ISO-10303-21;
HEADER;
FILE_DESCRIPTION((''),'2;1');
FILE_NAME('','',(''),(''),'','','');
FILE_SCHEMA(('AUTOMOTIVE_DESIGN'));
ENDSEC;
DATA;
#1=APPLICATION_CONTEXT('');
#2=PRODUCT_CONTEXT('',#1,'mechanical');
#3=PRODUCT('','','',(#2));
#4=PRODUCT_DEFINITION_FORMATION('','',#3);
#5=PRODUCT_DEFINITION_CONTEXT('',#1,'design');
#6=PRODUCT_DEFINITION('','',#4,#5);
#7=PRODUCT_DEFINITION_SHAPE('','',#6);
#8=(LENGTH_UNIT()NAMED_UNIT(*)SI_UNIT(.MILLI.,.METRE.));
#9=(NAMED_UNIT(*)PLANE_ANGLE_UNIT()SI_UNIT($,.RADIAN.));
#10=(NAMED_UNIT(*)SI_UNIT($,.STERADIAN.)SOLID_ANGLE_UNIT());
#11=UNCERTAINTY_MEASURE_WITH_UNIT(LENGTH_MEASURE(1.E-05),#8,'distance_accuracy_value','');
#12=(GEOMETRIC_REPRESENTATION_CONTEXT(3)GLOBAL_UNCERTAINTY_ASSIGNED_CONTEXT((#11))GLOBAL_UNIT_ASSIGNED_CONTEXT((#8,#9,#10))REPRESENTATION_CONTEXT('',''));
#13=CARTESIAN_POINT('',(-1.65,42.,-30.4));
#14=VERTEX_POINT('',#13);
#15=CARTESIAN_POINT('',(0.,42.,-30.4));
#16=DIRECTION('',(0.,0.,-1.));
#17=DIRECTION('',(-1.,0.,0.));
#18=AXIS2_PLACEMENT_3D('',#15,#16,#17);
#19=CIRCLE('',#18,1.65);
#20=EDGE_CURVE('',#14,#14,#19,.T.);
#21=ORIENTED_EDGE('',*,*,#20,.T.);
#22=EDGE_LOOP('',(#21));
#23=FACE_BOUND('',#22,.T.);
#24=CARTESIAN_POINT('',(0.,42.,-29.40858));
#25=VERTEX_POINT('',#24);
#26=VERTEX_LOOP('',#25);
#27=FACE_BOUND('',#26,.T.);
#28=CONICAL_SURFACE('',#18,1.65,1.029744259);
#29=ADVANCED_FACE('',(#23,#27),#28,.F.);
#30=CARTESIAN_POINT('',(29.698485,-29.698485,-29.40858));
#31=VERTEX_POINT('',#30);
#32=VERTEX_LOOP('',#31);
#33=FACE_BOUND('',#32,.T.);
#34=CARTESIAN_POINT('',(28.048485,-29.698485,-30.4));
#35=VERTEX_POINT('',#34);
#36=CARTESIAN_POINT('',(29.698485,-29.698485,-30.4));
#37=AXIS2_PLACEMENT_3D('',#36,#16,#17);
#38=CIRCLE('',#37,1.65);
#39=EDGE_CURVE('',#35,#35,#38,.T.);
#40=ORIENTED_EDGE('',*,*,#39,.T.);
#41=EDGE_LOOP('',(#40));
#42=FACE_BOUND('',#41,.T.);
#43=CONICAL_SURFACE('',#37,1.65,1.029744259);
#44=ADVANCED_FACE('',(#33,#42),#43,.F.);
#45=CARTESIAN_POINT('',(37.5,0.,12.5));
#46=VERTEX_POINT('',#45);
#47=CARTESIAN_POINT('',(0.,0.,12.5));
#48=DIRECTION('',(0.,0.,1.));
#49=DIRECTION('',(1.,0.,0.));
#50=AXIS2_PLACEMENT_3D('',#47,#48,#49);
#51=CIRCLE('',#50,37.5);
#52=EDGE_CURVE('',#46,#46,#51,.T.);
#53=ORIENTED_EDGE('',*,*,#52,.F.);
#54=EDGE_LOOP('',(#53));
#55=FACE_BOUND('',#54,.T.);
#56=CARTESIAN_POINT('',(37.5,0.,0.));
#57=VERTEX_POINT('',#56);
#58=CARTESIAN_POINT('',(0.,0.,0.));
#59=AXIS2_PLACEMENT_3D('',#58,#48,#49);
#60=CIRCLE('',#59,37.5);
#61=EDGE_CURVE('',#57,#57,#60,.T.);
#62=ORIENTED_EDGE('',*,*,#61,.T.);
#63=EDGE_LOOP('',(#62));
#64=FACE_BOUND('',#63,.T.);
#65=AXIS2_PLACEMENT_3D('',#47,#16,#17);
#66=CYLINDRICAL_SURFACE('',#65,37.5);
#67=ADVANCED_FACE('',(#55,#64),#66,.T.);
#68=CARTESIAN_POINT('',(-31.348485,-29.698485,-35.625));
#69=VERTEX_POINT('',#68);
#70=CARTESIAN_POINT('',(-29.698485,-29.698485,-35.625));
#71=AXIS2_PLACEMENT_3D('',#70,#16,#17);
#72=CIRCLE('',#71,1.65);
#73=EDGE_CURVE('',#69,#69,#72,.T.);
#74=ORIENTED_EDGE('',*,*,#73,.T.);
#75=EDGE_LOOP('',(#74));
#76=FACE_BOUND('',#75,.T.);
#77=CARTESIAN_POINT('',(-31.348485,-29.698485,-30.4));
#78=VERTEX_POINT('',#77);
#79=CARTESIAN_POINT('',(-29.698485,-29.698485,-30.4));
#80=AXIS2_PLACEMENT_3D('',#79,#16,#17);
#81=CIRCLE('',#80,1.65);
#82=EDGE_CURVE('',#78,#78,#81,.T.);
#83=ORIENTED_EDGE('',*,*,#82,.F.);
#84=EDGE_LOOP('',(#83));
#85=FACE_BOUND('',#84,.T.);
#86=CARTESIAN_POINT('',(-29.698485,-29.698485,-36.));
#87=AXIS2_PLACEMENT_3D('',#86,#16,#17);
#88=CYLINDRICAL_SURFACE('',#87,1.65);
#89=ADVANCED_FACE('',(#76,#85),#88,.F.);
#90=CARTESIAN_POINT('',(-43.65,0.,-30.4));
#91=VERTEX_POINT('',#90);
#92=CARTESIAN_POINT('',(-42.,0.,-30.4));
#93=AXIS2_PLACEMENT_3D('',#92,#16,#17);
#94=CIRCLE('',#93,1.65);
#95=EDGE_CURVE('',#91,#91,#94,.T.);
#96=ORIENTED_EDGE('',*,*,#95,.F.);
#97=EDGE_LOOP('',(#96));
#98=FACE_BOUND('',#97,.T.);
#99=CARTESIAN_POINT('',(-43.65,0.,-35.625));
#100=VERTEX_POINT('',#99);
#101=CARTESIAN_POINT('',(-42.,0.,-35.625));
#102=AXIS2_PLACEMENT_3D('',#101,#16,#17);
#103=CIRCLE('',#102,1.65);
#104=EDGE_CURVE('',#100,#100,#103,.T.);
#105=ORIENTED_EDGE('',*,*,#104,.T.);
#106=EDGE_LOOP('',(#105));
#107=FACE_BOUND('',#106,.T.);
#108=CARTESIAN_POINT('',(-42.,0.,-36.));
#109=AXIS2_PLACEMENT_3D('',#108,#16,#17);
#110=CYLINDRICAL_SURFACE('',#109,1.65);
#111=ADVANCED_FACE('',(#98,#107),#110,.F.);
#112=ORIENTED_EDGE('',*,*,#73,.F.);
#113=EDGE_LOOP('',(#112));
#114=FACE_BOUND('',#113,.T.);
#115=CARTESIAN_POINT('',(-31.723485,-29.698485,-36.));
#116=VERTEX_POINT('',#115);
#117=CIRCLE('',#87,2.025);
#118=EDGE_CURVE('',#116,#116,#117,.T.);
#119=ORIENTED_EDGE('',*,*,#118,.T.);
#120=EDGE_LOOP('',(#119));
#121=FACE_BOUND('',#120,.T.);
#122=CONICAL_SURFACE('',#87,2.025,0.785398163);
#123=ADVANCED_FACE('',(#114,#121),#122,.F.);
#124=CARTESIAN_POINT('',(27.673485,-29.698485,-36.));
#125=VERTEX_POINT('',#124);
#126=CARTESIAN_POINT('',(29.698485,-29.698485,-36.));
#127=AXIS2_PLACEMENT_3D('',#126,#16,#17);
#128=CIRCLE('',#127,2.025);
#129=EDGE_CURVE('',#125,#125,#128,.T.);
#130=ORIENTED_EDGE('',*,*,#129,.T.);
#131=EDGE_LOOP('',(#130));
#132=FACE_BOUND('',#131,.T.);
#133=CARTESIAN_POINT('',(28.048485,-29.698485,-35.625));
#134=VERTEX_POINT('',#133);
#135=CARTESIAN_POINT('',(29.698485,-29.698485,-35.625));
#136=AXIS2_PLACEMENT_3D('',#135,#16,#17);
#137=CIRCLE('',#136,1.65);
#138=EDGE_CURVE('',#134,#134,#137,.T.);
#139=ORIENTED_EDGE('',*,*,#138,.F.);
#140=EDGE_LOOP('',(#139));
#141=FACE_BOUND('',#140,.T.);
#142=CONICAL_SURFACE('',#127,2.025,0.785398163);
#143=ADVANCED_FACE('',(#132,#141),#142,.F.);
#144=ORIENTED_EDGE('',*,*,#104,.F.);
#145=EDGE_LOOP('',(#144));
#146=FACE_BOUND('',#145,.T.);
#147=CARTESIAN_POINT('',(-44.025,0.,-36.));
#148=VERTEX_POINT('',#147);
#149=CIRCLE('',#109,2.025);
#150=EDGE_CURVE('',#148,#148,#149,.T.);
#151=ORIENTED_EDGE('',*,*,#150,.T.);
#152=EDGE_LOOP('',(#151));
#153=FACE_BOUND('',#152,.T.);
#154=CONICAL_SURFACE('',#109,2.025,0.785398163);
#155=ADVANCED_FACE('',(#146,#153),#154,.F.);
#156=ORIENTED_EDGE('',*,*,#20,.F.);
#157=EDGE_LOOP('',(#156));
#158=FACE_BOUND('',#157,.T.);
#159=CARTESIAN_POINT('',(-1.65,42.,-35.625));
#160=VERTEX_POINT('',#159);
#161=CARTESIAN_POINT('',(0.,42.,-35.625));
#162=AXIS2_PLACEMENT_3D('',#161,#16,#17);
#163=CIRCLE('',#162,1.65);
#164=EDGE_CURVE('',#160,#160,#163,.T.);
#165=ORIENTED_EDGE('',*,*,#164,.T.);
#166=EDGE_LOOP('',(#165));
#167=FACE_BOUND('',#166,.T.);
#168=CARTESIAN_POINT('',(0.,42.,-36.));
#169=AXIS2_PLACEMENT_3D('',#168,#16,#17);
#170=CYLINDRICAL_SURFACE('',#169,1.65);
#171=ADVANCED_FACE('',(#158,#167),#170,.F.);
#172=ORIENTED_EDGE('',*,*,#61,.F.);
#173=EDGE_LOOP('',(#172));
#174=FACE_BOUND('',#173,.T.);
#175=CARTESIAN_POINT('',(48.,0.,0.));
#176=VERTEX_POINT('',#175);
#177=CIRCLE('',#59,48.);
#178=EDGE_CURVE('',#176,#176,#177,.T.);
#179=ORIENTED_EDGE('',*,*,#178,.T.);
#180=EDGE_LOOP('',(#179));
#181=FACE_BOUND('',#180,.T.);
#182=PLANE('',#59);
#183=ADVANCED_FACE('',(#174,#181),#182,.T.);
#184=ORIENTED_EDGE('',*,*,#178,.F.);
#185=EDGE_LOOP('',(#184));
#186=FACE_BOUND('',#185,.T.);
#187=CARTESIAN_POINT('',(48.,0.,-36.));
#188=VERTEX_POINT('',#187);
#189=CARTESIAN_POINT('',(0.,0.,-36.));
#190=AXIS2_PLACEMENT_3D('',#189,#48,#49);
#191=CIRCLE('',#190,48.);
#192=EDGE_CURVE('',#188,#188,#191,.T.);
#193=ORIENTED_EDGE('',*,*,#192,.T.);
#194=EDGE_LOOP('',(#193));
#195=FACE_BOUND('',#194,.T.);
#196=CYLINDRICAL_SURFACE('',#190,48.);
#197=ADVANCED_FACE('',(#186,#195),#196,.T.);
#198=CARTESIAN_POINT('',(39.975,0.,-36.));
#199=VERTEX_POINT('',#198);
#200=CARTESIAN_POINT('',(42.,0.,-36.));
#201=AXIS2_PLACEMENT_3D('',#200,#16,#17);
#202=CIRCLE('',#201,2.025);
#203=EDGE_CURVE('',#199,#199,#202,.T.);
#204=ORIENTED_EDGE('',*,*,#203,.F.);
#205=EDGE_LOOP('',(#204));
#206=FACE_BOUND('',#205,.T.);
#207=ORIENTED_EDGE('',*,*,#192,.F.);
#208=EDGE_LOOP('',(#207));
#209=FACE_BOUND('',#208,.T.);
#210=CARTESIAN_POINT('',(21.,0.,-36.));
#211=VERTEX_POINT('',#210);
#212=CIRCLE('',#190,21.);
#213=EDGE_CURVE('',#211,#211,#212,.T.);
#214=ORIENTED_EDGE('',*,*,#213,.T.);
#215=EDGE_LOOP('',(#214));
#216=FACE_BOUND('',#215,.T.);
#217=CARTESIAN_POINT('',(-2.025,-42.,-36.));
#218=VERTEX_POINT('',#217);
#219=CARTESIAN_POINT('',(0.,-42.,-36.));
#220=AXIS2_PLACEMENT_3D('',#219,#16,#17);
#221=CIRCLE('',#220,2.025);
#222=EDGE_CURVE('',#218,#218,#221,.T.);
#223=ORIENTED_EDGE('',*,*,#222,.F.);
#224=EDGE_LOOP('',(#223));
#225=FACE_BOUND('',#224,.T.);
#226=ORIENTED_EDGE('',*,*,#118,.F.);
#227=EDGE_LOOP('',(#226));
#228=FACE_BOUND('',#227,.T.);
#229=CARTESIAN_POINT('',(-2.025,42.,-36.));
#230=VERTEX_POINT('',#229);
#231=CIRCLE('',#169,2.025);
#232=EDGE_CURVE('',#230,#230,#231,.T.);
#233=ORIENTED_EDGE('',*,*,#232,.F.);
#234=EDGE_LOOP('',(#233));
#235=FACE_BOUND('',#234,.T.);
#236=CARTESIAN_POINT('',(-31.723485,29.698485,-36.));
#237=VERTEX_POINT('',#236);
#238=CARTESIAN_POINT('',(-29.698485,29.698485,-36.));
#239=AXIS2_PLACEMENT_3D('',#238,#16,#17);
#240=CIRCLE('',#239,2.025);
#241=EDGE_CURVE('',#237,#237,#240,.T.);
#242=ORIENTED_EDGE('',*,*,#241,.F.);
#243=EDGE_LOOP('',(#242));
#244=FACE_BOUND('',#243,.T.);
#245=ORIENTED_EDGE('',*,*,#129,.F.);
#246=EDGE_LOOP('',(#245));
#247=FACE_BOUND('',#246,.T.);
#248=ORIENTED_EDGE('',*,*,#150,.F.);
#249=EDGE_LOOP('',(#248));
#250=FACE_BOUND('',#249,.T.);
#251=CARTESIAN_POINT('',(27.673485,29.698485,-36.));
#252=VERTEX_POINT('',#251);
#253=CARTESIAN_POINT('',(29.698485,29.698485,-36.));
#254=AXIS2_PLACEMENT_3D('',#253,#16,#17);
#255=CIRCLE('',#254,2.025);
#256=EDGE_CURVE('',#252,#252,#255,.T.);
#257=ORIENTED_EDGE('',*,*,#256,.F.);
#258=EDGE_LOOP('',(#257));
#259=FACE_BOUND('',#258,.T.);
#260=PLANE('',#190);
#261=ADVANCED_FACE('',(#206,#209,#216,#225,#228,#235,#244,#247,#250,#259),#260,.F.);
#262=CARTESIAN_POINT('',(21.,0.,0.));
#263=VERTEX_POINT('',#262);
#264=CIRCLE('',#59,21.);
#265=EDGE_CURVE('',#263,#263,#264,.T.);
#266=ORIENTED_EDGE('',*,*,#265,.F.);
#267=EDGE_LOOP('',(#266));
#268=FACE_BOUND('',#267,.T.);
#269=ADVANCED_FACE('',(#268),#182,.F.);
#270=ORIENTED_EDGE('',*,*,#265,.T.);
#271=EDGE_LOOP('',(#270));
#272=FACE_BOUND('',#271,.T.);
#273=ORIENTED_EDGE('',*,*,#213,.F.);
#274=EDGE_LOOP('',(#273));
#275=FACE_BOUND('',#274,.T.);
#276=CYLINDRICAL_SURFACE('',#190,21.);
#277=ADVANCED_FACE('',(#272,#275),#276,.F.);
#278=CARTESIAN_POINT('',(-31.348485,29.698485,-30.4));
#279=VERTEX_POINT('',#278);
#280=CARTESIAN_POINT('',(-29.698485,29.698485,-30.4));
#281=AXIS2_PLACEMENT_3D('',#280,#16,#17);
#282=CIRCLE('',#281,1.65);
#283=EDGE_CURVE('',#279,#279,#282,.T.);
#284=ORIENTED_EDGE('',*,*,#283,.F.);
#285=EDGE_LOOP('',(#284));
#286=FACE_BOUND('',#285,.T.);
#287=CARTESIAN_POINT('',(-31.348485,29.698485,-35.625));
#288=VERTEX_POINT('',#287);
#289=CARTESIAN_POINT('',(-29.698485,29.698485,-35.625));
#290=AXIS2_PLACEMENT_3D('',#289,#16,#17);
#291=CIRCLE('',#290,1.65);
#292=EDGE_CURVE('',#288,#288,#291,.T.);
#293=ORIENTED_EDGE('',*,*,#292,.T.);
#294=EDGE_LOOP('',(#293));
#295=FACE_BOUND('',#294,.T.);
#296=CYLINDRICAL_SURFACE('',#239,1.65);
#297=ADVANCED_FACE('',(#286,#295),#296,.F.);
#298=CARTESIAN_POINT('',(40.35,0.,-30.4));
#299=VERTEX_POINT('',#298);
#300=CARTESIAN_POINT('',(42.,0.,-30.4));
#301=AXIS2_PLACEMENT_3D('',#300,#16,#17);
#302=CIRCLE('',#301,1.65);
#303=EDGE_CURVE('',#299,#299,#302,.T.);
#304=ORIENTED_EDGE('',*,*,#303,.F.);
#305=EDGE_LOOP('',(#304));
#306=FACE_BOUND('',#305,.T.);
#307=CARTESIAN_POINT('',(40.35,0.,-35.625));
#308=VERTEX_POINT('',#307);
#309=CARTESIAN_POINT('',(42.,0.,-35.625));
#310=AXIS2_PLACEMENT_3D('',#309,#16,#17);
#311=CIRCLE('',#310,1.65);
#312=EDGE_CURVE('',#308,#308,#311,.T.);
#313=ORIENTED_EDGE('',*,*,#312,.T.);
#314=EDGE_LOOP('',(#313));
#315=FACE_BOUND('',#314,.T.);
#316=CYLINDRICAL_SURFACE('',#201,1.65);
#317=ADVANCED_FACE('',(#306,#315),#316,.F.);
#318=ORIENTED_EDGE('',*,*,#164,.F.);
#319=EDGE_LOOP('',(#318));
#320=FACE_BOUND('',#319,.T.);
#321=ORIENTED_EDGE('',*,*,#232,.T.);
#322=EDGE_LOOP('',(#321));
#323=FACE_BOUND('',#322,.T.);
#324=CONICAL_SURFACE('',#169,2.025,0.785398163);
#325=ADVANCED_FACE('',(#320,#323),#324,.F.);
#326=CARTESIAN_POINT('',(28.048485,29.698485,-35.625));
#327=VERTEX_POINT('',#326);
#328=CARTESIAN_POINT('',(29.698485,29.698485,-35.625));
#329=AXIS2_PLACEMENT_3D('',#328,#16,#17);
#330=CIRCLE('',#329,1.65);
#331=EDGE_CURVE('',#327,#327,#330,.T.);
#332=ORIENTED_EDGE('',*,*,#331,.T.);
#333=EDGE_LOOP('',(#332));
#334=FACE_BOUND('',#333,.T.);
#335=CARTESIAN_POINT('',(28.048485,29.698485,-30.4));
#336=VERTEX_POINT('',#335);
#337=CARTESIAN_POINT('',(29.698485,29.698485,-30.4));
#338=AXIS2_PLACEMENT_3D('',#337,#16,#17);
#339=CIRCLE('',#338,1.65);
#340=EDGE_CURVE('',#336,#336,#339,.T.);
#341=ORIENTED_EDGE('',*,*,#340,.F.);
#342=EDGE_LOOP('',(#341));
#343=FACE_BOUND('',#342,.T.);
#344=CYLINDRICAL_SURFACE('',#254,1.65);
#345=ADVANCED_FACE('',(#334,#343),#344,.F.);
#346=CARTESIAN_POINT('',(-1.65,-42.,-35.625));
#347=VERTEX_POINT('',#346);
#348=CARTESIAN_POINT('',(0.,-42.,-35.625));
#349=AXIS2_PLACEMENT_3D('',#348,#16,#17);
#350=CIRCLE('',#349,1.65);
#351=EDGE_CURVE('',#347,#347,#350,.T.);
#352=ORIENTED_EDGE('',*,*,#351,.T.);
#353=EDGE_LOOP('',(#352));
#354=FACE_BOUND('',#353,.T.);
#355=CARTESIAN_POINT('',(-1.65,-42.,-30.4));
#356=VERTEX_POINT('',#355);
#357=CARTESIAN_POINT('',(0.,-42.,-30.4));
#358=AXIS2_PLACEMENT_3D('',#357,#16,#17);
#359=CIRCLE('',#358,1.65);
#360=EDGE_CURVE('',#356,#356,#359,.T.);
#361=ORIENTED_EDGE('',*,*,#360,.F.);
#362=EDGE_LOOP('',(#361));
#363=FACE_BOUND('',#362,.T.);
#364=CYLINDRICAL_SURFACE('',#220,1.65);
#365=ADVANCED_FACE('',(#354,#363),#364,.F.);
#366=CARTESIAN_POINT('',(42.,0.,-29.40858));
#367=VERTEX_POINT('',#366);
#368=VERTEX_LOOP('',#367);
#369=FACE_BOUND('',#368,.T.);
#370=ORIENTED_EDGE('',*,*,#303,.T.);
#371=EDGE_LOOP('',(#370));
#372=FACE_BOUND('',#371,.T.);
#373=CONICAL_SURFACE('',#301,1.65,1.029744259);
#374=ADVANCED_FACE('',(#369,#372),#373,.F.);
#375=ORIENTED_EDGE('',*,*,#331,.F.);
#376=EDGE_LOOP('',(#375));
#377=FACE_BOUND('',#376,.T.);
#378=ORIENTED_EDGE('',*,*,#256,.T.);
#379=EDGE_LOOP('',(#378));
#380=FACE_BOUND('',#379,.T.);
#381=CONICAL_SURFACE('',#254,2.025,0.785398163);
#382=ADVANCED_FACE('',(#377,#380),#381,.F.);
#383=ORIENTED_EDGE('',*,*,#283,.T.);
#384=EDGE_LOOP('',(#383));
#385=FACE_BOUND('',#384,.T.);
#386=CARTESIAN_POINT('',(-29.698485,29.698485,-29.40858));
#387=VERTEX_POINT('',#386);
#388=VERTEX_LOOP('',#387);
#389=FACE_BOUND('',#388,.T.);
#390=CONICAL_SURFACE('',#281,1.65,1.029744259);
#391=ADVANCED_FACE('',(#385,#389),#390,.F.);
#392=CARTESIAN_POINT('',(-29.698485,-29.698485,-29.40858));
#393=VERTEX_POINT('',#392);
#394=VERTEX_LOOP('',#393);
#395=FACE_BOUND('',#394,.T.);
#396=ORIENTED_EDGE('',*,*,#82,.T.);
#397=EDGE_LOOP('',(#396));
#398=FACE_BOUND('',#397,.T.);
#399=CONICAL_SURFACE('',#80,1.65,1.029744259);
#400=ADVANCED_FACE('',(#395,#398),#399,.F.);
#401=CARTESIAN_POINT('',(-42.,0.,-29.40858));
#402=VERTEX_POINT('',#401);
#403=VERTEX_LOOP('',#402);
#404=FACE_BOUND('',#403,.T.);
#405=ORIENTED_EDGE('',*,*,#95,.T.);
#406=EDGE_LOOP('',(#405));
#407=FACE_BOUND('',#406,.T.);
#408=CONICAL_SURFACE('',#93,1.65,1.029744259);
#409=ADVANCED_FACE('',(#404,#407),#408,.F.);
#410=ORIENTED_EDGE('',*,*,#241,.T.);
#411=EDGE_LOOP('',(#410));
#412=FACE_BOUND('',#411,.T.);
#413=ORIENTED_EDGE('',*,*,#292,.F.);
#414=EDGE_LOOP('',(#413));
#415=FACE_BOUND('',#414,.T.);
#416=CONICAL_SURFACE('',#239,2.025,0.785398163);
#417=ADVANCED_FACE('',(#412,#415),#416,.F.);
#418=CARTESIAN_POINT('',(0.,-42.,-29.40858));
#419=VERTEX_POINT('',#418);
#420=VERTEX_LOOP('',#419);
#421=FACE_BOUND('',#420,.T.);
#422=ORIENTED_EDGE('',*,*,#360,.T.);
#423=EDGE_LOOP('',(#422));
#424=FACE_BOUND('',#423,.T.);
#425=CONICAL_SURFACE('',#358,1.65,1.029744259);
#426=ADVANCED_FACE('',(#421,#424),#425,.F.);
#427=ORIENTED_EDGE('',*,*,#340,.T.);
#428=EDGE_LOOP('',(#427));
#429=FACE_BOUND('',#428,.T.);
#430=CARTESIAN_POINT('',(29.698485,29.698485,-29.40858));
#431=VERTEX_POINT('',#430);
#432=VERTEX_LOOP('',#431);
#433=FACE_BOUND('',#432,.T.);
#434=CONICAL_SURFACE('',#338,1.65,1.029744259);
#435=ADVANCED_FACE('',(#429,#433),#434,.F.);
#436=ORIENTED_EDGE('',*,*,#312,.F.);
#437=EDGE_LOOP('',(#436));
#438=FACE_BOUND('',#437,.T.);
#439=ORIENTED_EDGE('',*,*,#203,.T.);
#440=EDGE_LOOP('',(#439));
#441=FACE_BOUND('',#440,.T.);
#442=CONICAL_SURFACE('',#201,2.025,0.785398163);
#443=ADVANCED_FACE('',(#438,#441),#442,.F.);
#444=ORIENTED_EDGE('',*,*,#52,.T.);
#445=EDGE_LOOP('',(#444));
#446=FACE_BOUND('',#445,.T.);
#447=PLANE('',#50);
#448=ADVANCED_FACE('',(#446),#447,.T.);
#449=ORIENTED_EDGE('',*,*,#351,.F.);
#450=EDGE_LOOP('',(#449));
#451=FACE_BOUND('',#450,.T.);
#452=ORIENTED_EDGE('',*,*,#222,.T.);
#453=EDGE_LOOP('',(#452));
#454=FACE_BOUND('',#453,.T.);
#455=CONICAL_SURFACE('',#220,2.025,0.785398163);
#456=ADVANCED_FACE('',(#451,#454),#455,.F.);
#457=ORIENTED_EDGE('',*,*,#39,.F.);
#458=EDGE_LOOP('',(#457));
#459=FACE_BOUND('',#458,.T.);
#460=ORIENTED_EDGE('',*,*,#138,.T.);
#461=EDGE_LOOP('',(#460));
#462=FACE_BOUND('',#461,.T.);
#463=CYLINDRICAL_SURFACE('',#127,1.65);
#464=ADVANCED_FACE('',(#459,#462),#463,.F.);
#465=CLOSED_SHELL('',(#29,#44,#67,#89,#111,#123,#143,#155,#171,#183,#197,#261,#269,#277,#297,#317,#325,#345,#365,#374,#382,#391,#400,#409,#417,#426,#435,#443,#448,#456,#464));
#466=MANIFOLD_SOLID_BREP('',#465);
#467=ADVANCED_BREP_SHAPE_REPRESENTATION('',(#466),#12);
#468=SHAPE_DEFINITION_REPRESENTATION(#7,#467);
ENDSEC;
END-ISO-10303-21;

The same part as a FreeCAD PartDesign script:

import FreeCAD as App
import Part
import Sketcher
from FreeCAD import Vector

doc = App.newDocument("Part")
params = doc.addObject("Spreadsheet::Sheet", "Params")
for row, (alias, value) in enumerate([
    ("sketch1_diameter", "75 mm"),
    ("pad1_length", "12.5 mm"),
    ("sketch2_diameter", "96 mm"),
    ("sketch2_diameter2", "42 mm"),
    ("pad2_length", "36 mm"),
    ("sketch3_diameter", "3.3 mm"),
    ("hole_diameter", "3.3 mm"),
    ("hole_depth", "5.6 mm"),
    ("hole_csink_diameter", "4.05 mm"),
], start=1):
    params.set(f"A{row}", alias)
    params.set(f"B{row}", "=" + value)
    params.setAlias(f"B{row}", alias)

body = doc.addObject("PartDesign::Body", "Body")

# Sketch on XY plane
sketch1 = body.newObject("Sketcher::SketchObject", "Sketch")
sketch1.AttachmentSupport = (doc.getObject("XY_Plane"), [""])
sketch1.MapMode = "FlatFace"
sketch1.addGeometry(Part.Circle(Vector(0, 0, 0), Vector(0, 0, 1), 38), False)
sketch1.addConstraint([
    Sketcher.Constraint("Coincident", 0, 3, -1, 1),
    Sketcher.Constraint("Diameter", 0, 75.0),
])
sketch1.setExpression("Constraints[1]", "Params.sketch1_diameter")
pad1 = body.newObject("PartDesign::Pad", "Pad")
pad1.Profile = sketch1
pad1.setExpression("Length", "Params.pad1_length")

# Sketch on XY plane
sketch2 = body.newObject("Sketcher::SketchObject", "Sketch001")
sketch2.AttachmentSupport = (doc.getObject("XY_Plane"), [""])
sketch2.MapMode = "FlatFace"
sketch2.AttachmentOffset = App.Placement(Vector(0, 0, -36), App.Rotation())
sketch2.addGeometry([
    Part.Circle(Vector(0, 0, 0), Vector(0, 0, 1), 48),
    Part.Circle(Vector(0, 0, 0), Vector(0, 0, 1), 21),
], False)
sketch2.addConstraint([
    Sketcher.Constraint("Coincident", 0, 3, -1, 1),
    Sketcher.Constraint("Coincident", 1, 3, -1, 1),
    Sketcher.Constraint("Diameter", 0, 96.0),
    Sketcher.Constraint("Diameter", 1, 42.0),
])
sketch2.setExpression("Constraints[2]", "Params.sketch2_diameter")
sketch2.setExpression("Constraints[3]", "Params.sketch2_diameter2")
pad2 = body.newObject("PartDesign::Pad", "Pad001")
pad2.Profile = sketch2
pad2.setExpression("Length", "Params.pad2_length")

# Sketch on XY plane
sketch3 = body.newObject("Sketcher::SketchObject", "Sketch002")
sketch3.AttachmentSupport = (doc.getObject("XY_Plane"), [""])
sketch3.MapMode = "FlatFace"
sketch3.AttachmentOffset = App.Placement(Vector(0, 0, -36), App.Rotation())
sketch3.addGeometry([
    Part.Circle(Vector(0, 42, 0), Vector(0, 0, 1), 1.6),  # 0
    Part.Circle(Vector(-29.7, 29.7, 0), Vector(0, 0, 1), 1.6),  # 1
    Part.Circle(Vector(-42, 0, 0), Vector(0, 0, 1), 1.6),  # 2
    Part.Circle(Vector(-29.7, -29.7, 0), Vector(0, 0, 1), 1.6),  # 3
    Part.Circle(Vector(0, -42, 0), Vector(0, 0, 1), 1.6),  # 4
    Part.Circle(Vector(29.7, -29.7, 0), Vector(0, 0, 1), 1.6),  # 5
    Part.Circle(Vector(42, 0, 0), Vector(0, 0, 1), 1.6),  # 6
    Part.Circle(Vector(29.7, 29.7, 0), Vector(0, 0, 1), 1.6),  # 7
], False)
sketch3.addConstraint([
    Sketcher.Constraint("Equal", 0, 1),
    Sketcher.Constraint("Equal", 1, 2),
    Sketcher.Constraint("Equal", 2, 3),
    Sketcher.Constraint("Equal", 3, 4),
    Sketcher.Constraint("Equal", 4, 5),
    Sketcher.Constraint("Equal", 5, 6),
    Sketcher.Constraint("Equal", 6, 7),
    Sketcher.Constraint("Symmetric", 0, 3, 4, 3, -1, 1),
    Sketcher.Constraint("Symmetric", 1, 3, 5, 3, -1, 1),
    Sketcher.Constraint("Symmetric", 2, 3, 6, 3, -1, 1),
    Sketcher.Constraint("Symmetric", 3, 3, 7, 3, -1, 1),
    Sketcher.Constraint("Symmetric", 3, 3, 5, 3, -2),
    Sketcher.Constraint("PointOnObject", 0, 3, -2),
    Sketcher.Constraint("PointOnObject", 2, 3, -1),
    Sketcher.Constraint("Diameter", 0, 3.3),
    Sketcher.Constraint("DistanceY", -1, 1, 0, 3, 42.0),
    Sketcher.Constraint("DistanceX", 2, 3, -1, 1, 42.0),
    Sketcher.Constraint("DistanceY", 3, 3, 1, 3, 59.39697),
    Sketcher.Constraint("DistanceX", 3, 3, 5, 3, 59.39697),
])
sketch3.setExpression("Constraints[14]", "Params.sketch3_diameter")
doc.recompute()
hole = body.newObject("PartDesign::Hole", "Hole")
hole.Profile = sketch3
hole.ThreadType = "None"
hole.setExpression("Diameter", "Params.hole_diameter")
hole.DepthType = "Dimension"
hole.setExpression("Depth", "Params.hole_depth")
hole.DrillPoint = "Angled"
hole.DrillPointAngle = 118
hole.HoleCutType = "Countersink"
hole.setExpression("HoleCutDiameter", "Params.hole_csink_diameter")
hole.HoleCutCountersinkAngle = 90
hole.Reversed = True

doc.recompute()
